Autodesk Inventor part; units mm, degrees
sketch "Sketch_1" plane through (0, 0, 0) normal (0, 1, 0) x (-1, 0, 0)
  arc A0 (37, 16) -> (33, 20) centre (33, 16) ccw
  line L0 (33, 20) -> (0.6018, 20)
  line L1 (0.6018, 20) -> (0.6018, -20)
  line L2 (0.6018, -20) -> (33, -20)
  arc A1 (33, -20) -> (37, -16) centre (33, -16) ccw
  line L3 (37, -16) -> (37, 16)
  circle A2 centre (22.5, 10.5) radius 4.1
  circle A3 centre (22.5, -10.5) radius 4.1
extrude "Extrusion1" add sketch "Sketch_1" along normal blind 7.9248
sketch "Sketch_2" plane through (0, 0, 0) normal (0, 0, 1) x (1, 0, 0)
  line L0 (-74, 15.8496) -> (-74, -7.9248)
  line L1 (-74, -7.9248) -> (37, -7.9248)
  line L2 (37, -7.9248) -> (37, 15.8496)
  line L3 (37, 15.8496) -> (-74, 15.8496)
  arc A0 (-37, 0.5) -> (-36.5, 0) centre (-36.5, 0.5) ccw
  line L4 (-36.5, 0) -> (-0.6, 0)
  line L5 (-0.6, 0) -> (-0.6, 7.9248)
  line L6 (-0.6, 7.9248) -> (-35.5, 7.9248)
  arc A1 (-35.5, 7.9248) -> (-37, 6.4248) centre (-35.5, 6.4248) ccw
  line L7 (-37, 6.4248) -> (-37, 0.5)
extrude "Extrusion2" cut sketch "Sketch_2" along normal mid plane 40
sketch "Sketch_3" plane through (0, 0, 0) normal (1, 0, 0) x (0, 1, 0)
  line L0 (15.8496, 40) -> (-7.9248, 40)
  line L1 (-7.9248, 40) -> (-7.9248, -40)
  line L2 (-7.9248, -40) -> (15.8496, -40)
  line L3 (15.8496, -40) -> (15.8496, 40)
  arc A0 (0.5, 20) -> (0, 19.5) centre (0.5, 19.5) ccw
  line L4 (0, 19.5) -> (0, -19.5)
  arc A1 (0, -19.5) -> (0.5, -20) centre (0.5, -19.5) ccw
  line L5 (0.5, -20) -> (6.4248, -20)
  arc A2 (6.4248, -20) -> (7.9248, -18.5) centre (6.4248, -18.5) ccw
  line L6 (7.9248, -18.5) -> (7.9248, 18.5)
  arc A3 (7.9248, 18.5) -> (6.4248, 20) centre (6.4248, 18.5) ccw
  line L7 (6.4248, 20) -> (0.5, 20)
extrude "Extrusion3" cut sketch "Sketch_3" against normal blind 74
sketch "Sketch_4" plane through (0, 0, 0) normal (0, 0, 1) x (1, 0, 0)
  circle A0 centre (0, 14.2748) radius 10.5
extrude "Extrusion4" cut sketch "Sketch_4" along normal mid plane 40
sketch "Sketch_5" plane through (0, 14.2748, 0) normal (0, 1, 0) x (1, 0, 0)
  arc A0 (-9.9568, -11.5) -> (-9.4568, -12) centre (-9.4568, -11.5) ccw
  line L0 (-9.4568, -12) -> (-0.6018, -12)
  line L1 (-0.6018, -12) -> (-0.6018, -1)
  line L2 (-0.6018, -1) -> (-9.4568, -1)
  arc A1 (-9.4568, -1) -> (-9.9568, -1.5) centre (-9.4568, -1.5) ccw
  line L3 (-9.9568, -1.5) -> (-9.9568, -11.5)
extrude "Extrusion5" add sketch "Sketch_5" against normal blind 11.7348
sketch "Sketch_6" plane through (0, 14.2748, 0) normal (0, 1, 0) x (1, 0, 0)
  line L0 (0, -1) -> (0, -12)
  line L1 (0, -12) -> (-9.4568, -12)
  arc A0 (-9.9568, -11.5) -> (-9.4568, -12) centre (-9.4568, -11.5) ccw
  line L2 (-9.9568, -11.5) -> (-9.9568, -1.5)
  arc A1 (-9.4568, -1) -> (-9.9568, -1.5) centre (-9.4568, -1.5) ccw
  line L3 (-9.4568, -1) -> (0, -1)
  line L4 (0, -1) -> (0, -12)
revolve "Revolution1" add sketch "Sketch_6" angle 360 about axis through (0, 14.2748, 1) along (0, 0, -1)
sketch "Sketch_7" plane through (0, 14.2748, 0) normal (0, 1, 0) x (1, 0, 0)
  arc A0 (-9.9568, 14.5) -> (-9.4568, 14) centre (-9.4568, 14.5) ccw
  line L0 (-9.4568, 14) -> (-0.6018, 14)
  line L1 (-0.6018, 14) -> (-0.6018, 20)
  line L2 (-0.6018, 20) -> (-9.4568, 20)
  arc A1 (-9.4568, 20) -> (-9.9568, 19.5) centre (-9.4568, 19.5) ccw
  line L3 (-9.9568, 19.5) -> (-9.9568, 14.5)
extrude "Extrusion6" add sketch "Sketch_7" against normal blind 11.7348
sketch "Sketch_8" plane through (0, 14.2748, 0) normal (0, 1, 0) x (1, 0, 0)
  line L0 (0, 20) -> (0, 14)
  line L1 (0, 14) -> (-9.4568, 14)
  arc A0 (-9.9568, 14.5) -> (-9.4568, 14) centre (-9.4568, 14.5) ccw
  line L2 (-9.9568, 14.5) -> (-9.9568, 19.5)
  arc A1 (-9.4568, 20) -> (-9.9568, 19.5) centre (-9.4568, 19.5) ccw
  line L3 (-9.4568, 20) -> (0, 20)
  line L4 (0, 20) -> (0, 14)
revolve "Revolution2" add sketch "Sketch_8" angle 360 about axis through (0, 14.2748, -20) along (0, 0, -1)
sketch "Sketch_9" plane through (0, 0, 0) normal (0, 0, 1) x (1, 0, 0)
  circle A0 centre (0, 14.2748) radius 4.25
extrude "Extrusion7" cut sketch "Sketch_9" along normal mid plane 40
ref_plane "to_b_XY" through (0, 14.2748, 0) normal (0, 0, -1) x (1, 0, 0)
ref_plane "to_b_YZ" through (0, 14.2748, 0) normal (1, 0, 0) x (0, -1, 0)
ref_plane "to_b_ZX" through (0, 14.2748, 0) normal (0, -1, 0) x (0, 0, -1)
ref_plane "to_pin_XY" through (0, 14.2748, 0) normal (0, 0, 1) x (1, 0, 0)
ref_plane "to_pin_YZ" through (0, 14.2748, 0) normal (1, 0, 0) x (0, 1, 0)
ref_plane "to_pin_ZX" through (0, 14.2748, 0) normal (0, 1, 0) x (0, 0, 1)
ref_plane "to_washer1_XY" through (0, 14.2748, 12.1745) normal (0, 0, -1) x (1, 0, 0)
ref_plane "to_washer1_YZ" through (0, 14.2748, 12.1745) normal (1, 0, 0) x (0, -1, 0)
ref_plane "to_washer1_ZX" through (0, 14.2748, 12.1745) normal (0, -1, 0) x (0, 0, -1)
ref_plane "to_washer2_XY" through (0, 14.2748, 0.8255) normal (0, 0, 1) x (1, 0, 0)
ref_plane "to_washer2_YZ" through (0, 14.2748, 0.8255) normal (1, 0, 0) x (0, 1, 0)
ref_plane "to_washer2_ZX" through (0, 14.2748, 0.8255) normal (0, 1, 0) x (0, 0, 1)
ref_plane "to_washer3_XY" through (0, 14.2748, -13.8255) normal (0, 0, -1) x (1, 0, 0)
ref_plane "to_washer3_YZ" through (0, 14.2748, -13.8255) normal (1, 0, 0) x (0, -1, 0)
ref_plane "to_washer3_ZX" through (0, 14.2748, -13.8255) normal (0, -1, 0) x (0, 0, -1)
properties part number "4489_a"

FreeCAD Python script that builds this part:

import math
import FreeCAD as App
import Part
import Sketcher
from FreeCAD import Vector

doc = App.newDocument("Part")
body = doc.addObject("PartDesign::Body", "Body")

sketch1 = doc.addObject("Sketcher::SketchObject", "Sketch")
body.addObject(sketch1)
sketch1.AttachmentSupport = (doc.XZ_Plane, [""])
sketch1.MapMode = "FlatFace"
sketch1.addGeometry([
    Part.LineSegment(Vector(-37, -16, 0), Vector(-37, 16, 0)),
    Part.ArcOfCircle(Part.Circle(Vector(-33, 16, 0), Vector(0, 0, 1), 4), math.radians(90), math.radians(180)),
    Part.LineSegment(Vector(-33, 20, 0), Vector(-0.6018, 20, 0)),
    Part.LineSegment(Vector(-0.6018, 20, 0), Vector(-0.6018, -20, 0)),
    Part.LineSegment(Vector(-0.6018, -20, 0), Vector(-33, -20, 0)),
    Part.ArcOfCircle(Part.Circle(Vector(-33, -16, 0), Vector(0, 0, 1), 4), math.radians(180), math.radians(270)),
    Part.Circle(Vector(-22.5, -10.5, 0), Vector(0, 0, 1), 4.1),
    Part.Circle(Vector(-22.5, 10.5, 0), Vector(0, 0, 1), 4.1),
], False)
sketch1.addConstraint([
    Sketcher.Constraint("Tangent", 0, 2, 1, 2),
    Sketcher.Constraint("Tangent", 1, 1, 2, 1),
    Sketcher.Constraint("Coincident", 2, 2, 3, 1),
    Sketcher.Constraint("Coincident", 3, 2, 4, 1),
    Sketcher.Constraint("Tangent", 4, 2, 5, 2),
    Sketcher.Constraint("Tangent", 5, 1, 0, 1),
    Sketcher.Constraint("Vertical", 0),
    Sketcher.Constraint("Horizontal", 2),
    Sketcher.Constraint("Vertical", 3),
    Sketcher.Constraint("Horizontal", 4),
    Sketcher.Constraint("Equal", 1, 5),
    Sketcher.Constraint("Equal", 6, 7),
    Sketcher.Constraint("Symmetric", 6, 3, 7, 3, -1),
    Sketcher.Constraint("Radius", 1, 4.0),
    Sketcher.Constraint("Diameter", 6, 8.2),
    Sketcher.Constraint("DistanceY", 0, 1, 0, 2, 32.0),
    Sketcher.Constraint("DistanceX", 1, 3, -1, 1, 33.0),
    Sketcher.Constraint("DistanceY", -1, 1, 1, 3, 16.0),
    Sketcher.Constraint("DistanceY", 6, 3, 7, 3, 21.0),
    Sketcher.Constraint("DistanceX", 6, 3, -1, 1, 22.5),
    Sketcher.Constraint("DistanceX", 2, 1, 2, 2, 32.3982),
])
pad1 = doc.addObject("PartDesign::Pad", "Pad")
body.addObject(pad1)
pad1.Profile = sketch1
pad1.Length = 7.9248
pad1.Reversed = True

sketch2 = doc.addObject("Sketcher::SketchObject", "Sketch001")
body.addObject(sketch2)
sketch2.AttachmentSupport = (doc.XY_Plane, [""])
sketch2.MapMode = "FlatFace"
sketch2.addGeometry([
    Part.LineSegment(Vector(37, 15.8496, 0), Vector(-74, 15.8496, 0)),
    Part.LineSegment(Vector(-74, 15.8496, 0), Vector(-74, -7.9248, 0)),
    Part.LineSegment(Vector(-74, -7.9248, 0), Vector(37, -7.9248, 0)),
    Part.LineSegment(Vector(37, -7.9248, 0), Vector(37, 15.8496, 0)),
    Part.ArcOfCircle(Part.Circle(Vector(-36.5, 0.5, 0), Vector(0, 0, 1), 0.5), math.radians(180), math.radians(270)),
    Part.LineSegment(Vector(-37, 0.5, 0), Vector(-37, 6.4248, 0)),
    Part.ArcOfCircle(Part.Circle(Vector(-35.5, 6.4248, 0), Vector(0, 0, 1), 1.5), math.radians(90), math.radians(180)),
    Part.LineSegment(Vector(-35.5, 7.9248, 0), Vector(-0.6, 7.9248, 0)),
    Part.LineSegment(Vector(-0.6, 7.9248, 0), Vector(-0.6, 0, 0)),
    Part.LineSegment(Vector(-0.6, 0, 0), Vector(-36.5, 0, 0)),
], False)
sketch2.addConstraint([
    Sketcher.Constraint("Coincident", 0, 2, 1, 1),
    Sketcher.Constraint("Coincident", 1, 2, 2, 1),
    Sketcher.Constraint("Coincident", 2, 2, 3, 1),
    Sketcher.Constraint("Coincident", 3, 2, 0, 1),
    Sketcher.Constraint("Tangent", 4, 1, 5, 1),
    Sketcher.Constraint("Tangent", 5, 2, 6, 2),
    Sketcher.Constraint("Tangent", 6, 1, 7, 1),
    Sketcher.Constraint("Coincident", 7, 2, 8, 1),
    Sketcher.Constraint("Coincident", 8, 2, 9, 1),
    Sketcher.Constraint("Tangent", 9, 2, 4, 2),
    Sketcher.Constraint("Horizontal", 0),
    Sketcher.Constraint("Vertical", 1),
    Sketcher.Constraint("Horizontal", 2),
    Sketcher.Constraint("Vertical", 3),
    Sketcher.Constraint("Vertical", 5),
    Sketcher.Constraint("Horizontal", 7),
    Sketcher.Constraint("Vertical", 8),
    Sketcher.Constraint("Horizontal", 9),
    Sketcher.Constraint("PointOnObject", 8, 2, -1),
    Sketcher.Constraint("Radius", 4, 0.5),
    Sketcher.Constraint("Radius", 6, 1.5),
    Sketcher.Constraint("DistanceX", 0, 2, 0, 1, 111.0),
    Sketcher.Constraint("DistanceX", 7, 1, 7, 2, 34.9),
    Sketcher.Constraint("DistanceX", 0, 2, -1, 1, 74.0),
    Sketcher.Constraint("DistanceX", 4, 1, -1, 1, 37.0),
    Sketcher.Constraint("DistanceY", 1, 2, 1, 1, 23.7744),
    Sketcher.Constraint("DistanceY", 5, 1, 5, 2, 5.9248),
    Sketcher.Constraint("DistanceY", -1, 1, 0, 2, 15.8496),
])
pocket1 = doc.addObject("PartDesign::Pocket", "Pocket")
body.addObject(pocket1)
pocket1.Profile = sketch2
pocket1.Length = 40
pocket1.Midplane = True

sketch3 = doc.addObject("Sketcher::SketchObject", "Sketch002")
body.addObject(sketch3)
sketch3.AttachmentSupport = (doc.YZ_Plane, [""])
sketch3.MapMode = "FlatFace"
sketch3.addGeometry([
    Part.LineSegment(Vector(15.8496, -40, 0), Vector(15.8496, 40, 0)),
    Part.LineSegment(Vector(15.8496, 40, 0), Vector(-7.9248, 40, 0)),
    Part.LineSegment(Vector(-7.9248, 40, 0), Vector(-7.9248, -40, 0)),
    Part.LineSegment(Vector(-7.9248, -40, 0), Vector(15.8496, -40, 0)),
    Part.ArcOfCircle(Part.Circle(Vector(0.5, 19.5, 0), Vector(0, 0, 1), 0.5), math.radians(90), math.radians(180)),
    Part.LineSegment(Vector(0.5, 20, 0), Vector(6.4248, 20, 0)),
    Part.ArcOfCircle(Part.Circle(Vector(6.4248, 18.5, 0), Vector(0, 0, 1), 1.5), math.radians(0), math.radians(90)),
    Part.LineSegment(Vector(7.9248, 18.5, 0), Vector(7.9248, -18.5, 0)),
    Part.ArcOfCircle(Part.Circle(Vector(6.4248, -18.5, 0), Vector(0, 0, 1), 1.5), math.radians(-90), math.radians(0)),
    Part.LineSegment(Vector(6.4248, -20, 0), Vector(0.5, -20, 0)),
    Part.ArcOfCircle(Part.Circle(Vector(0.5, -19.5, 0), Vector(0, 0, 1), 0.5), math.radians(180), math.radians(270)),
    Part.LineSegment(Vector(0, -19.5, 0), Vector(0, 19.5, 0)),
], False)
sketch3.addConstraint([
    Sketcher.Constraint("Coincident", 0, 2, 1, 1),
    Sketcher.Constraint("Coincident", 1, 2, 2, 1),
    Sketcher.Constraint("Coincident", 2, 2, 3, 1),
    Sketcher.Constraint("Coincident", 3, 2, 0, 1),
    Sketcher.Constraint("Tangent", 4, 1, 5, 1),
    Sketcher.Constraint("Tangent", 5, 2, 6, 2),
    Sketcher.Constraint("Tangent", 6, 1, 7, 1),
    Sketcher.Constraint("Tangent", 7, 2, 8, 2),
    Sketcher.Constraint("Tangent", 8, 1, 9, 1),
    Sketcher.Constraint("Tangent", 9, 2, 10, 2),
    Sketcher.Constraint("Tangent", 10, 1, 11, 1),
    Sketcher.Constraint("Tangent", 11, 2, 4, 2),
    Sketcher.Constraint("Vertical", 0),
    Sketcher.Constraint("Horizontal", 1),
    Sketcher.Constraint("Vertical", 2),
    Sketcher.Constraint("Horizontal", 3),
    Sketcher.Constraint("Horizontal", 5),
    Sketcher.Constraint("Vertical", 7),
    Sketcher.Constraint("Horizontal", 9),
    Sketcher.Constraint("Vertical", 11),
    Sketcher.Constraint("Equal", 6, 8),
    Sketcher.Constraint("Equal", 4, 10),
    Sketcher.Constraint("Symmetric", 10, 1, 11, 2, -1, 1),
    Sketcher.Constraint("Radius", 4, 0.5),
    Sketcher.Constraint("Radius", 6, 1.5),
    Sketcher.Constraint("DistanceY", 0, 1, 0, 2, 80.0),
    Sketcher.Constraint("DistanceY", 7, 2, 7, 1, 37.0),
    Sketcher.Constraint("DistanceY", -1, 1, 0, 2, 40.0),
    Sketcher.Constraint("DistanceX", 1, 2, 1, 1, 23.7744),
    Sketcher.Constraint("DistanceX", 5, 1, 5, 2, 5.9248),
    Sketcher.Constraint("DistanceX", -1, 1, 0, 2, 15.8496),
])
pocket2 = doc.addObject("PartDesign::Pocket", "Pocket001")
body.addObject(pocket2)
pocket2.Profile = sketch3
pocket2.Length = 74

sketch4 = doc.addObject("Sketcher::SketchObject", "Sketch003")
body.addObject(sketch4)
sketch4.AttachmentSupport = (doc.XY_Plane, [""])
sketch4.MapMode = "FlatFace"
sketch4.addGeometry(Part.Circle(Vector(0, 14.2748, 0), Vector(0, 0, 1), 10.5), False)
sketch4.addConstraint([
    Sketcher.Constraint("PointOnObject", 0, 3, -2),
    Sketcher.Constraint("Diameter", 0, 21.0),
    Sketcher.Constraint("DistanceY", -1, 1, 0, 3, 14.2748),
])
pocket3 = doc.addObject("PartDesign::Pocket", "Pocket002")
body.addObject(pocket3)
pocket3.Profile = sketch4
pocket3.Length = 40
pocket3.Midplane = True

sketch5 = doc.addObject("Sketcher::SketchObject", "Sketch004")
body.addObject(sketch5)
sketch5.AttachmentSupport = (doc.XZ_Plane, [""])
sketch5.MapMode = "FlatFace"
sketch5.AttachmentOffset = App.Placement(Vector(0, 0, -14.2748), App.Rotation())
sketch5.addGeometry([
    Part.LineSegment(Vector(-9.9568, 1.5, 0), Vector(-9.9568, 11.5, 0)),
    Part.ArcOfCircle(Part.Circle(Vector(-9.4568, 11.5, 0), Vector(0, 0, 1), 0.5), math.radians(90), math.radians(180)),
    Part.LineSegment(Vector(-9.4568, 12, 0), Vector(-0.6018, 12, 0)),
    Part.LineSegment(Vector(-0.6018, 12, 0), Vector(-0.6018, 1, 0)),
    Part.LineSegment(Vector(-0.6018, 1, 0), Vector(-9.4568, 1, 0)),
    Part.ArcOfCircle(Part.Circle(Vector(-9.4568, 1.5, 0), Vector(0, 0, 1), 0.5), math.radians(180), math.radians(270)),
], False)
sketch5.addConstraint([
    Sketcher.Constraint("Tangent", 0, 2, 1, 2),
    Sketcher.Constraint("Tangent", 1, 1, 2, 1),
    Sketcher.Constraint("Coincident", 2, 2, 3, 1),
    Sketcher.Constraint("Coincident", 3, 2, 4, 1),
    Sketcher.Constraint("Tangent", 4, 2, 5, 2),
    Sketcher.Constraint("Tangent", 5, 1, 0, 1),
    Sketcher.Constraint("Vertical", 0),
    Sketcher.Constraint("Horizontal", 2),
    Sketcher.Constraint("Vertical", 3),
    Sketcher.Constraint("Horizontal", 4),
    Sketcher.Constraint("Equal", 1, 5),
    Sketcher.Constraint("Radius", 1, 0.5),
    Sketcher.Constraint("DistanceY", 0, 1, 0, 2, 10.0),
    Sketcher.Constraint("DistanceY", -1, 1, 1, 1, 12.0),
    Sketcher.Constraint("DistanceX", 2, 1, 2, 2, 8.855),
    Sketcher.Constraint("DistanceX", 1, 3, -1, 1, 9.4568),
])
pad2 = doc.addObject("PartDesign::Pad", "Pad001")
body.addObject(pad2)
pad2.Profile = sketch5
pad2.Length = 11.7348

sketch6 = doc.addObject("Sketcher::SketchObject", "Sketch005")
body.addObject(sketch6)
sketch6.AttachmentSupport = (doc.XZ_Plane, [""])
sketch6.MapMode = "FlatFace"
sketch6.AttachmentOffset = App.Placement(Vector(0, 0, -14.2748), App.Rotation())
sketch6.addGeometry([
    Part.LineSegment(Vector(0, 12, 0), Vector(0, 1, 0)),
    Part.LineSegment(Vector(0, 1, 0), Vector(-9.4568, 1, 0)),
    Part.ArcOfCircle(Part.Circle(Vector(-9.4568, 1.5, 0), Vector(0, 0, 1), 0.5), math.radians(180), math.radians(270)),
    Part.LineSegment(Vector(-9.9568, 1.5, 0), Vector(-9.9568, 11.5, 0)),
    Part.ArcOfCircle(Part.Circle(Vector(-9.4568, 11.5, 0), Vector(0, 0, 1), 0.5), math.radians(90), math.radians(180)),
    Part.LineSegment(Vector(-9.4568, 12, 0), Vector(0, 12, 0)),
], False)
sketch6.addConstraint([
    Sketcher.Constraint("Coincident", 0, 2, 1, 1),
    Sketcher.Constraint("Tangent", 1, 2, 2, 2),
    Sketcher.Constraint("Tangent", 2, 1, 3, 1),
    Sketcher.Constraint("Tangent", 3, 2, 4, 2),
    Sketcher.Constraint("Tangent", 4, 1, 5, 1),
    Sketcher.Constraint("Coincident", 5, 2, 0, 1),
    Sketcher.Constraint("Vertical", 0),
    Sketcher.Constraint("Horizontal", 1),
    Sketcher.Constraint("Vertical", 3),
    Sketcher.Constraint("Horizontal", 5),
    Sketcher.Constraint("Equal", 2, 4),
    Sketcher.Constraint("PointOnObject", 0, 2, -2),
    Sketcher.Constraint("Radius", 2, 0.5),
    Sketcher.Constraint("DistanceY", 0, 2, 0, 1, 11.0),
    Sketcher.Constraint("DistanceY", -1, 1, 0, 2, 1.0),
    Sketcher.Constraint("DistanceX", 1, 2, 1, 1, 9.4568),
])
revolution = doc.addObject("PartDesign::Revolution", "Revolution")
body.addObject(revolution)
revolution.Profile = sketch6
revolution.ReferenceAxis = (sketch6, ["V_Axis"])
revolution.Angle = 360

sketch7 = doc.addObject("Sketcher::SketchObject", "Sketch006")
body.addObject(sketch7)
sketch7.AttachmentSupport = (doc.XZ_Plane, [""])
sketch7.MapMode = "FlatFace"
sketch7.AttachmentOffset = App.Placement(Vector(0, 0, -14.2748), App.Rotation())
sketch7.addGeometry([
    Part.LineSegment(Vector(-9.9568, -19.5, 0), Vector(-9.9568, -14.5, 0)),
    Part.ArcOfCircle(Part.Circle(Vector(-9.4568, -14.5, 0), Vector(0, 0, 1), 0.5), math.radians(90), math.radians(180)),
    Part.LineSegment(Vector(-9.4568, -14, 0), Vector(-0.6018, -14, 0)),
    Part.LineSegment(Vector(-0.6018, -14, 0), Vector(-0.6018, -20, 0)),
    Part.LineSegment(Vector(-0.6018, -20, 0), Vector(-9.4568, -20, 0)),
    Part.ArcOfCircle(Part.Circle(Vector(-9.4568, -19.5, 0), Vector(0, 0, 1), 0.5), math.radians(180), math.radians(270)),
], False)
sketch7.addConstraint([
    Sketcher.Constraint("Tangent", 0, 2, 1, 2),
    Sketcher.Constraint("Tangent", 1, 1, 2, 1),
    Sketcher.Constraint("Coincident", 2, 2, 3, 1),
    Sketcher.Constraint("Coincident", 3, 2, 4, 1),
    Sketcher.Constraint("Tangent", 4, 2, 5, 2),
    Sketcher.Constraint("Tangent", 5, 1, 0, 1),
    Sketcher.Constraint("Vertical", 0),
    Sketcher.Constraint("Horizontal", 2),
    Sketcher.Constraint("Vertical", 3),
    Sketcher.Constraint("Horizontal", 4),
    Sketcher.Constraint("Equal", 1, 5),
    Sketcher.Constraint("Radius", 1, 0.5),
    Sketcher.Constraint("DistanceY", 0, 1, 0, 2, 5.0),
    Sketcher.Constraint("DistanceY", 1, 1, -1, 1, 14.0),
    Sketcher.Constraint("DistanceX", 2, 1, 2, 2, 8.855),
    Sketcher.Constraint("DistanceX", 1, 3, -1, 1, 9.4568),
])
pad3 = doc.addObject("PartDesign::Pad", "Pad002")
body.addObject(pad3)
pad3.Profile = sketch7
pad3.Length = 11.7348

sketch8 = doc.addObject("Sketcher::SketchObject", "Sketch007")
body.addObject(sketch8)
sketch8.AttachmentSupport = (doc.XZ_Plane, [""])
sketch8.MapMode = "FlatFace"
sketch8.AttachmentOffset = App.Placement(Vector(0, 0, -14.2748), App.Rotation())
sketch8.addGeometry([
    Part.LineSegment(Vector(0, -14, 0), Vector(0, -20, 0)),
    Part.LineSegment(Vector(0, -20, 0), Vector(-9.4568, -20, 0)),
    Part.ArcOfCircle(Part.Circle(Vector(-9.4568, -19.5, 0), Vector(0, 0, 1), 0.5), math.radians(180), math.radians(270)),
    Part.LineSegment(Vector(-9.9568, -19.5, 0), Vector(-9.9568, -14.5, 0)),
    Part.ArcOfCircle(Part.Circle(Vector(-9.4568, -14.5, 0), Vector(0, 0, 1), 0.5), math.radians(90), math.radians(180)),
    Part.LineSegment(Vector(-9.4568, -14, 0), Vector(0, -14, 0)),
], False)
sketch8.addConstraint([
    Sketcher.Constraint("Coincident", 0, 2, 1, 1),
    Sketcher.Constraint("Tangent", 1, 2, 2, 2),
    Sketcher.Constraint("Tangent", 2, 1, 3, 1),
    Sketcher.Constraint("Tangent", 3, 2, 4, 2),
    Sketcher.Constraint("Tangent", 4, 1, 5, 1),
    Sketcher.Constraint("Coincident", 5, 2, 0, 1),
    Sketcher.Constraint("Vertical", 0),
    Sketcher.Constraint("Horizontal", 1),
    Sketcher.Constraint("Vertical", 3),
    Sketcher.Constraint("Horizontal", 5),
    Sketcher.Constraint("Equal", 2, 4),
    Sketcher.Constraint("PointOnObject", 0, 2, -2),
    Sketcher.Constraint("Radius", 2, 0.5),
    Sketcher.Constraint("DistanceY", 0, 2, 0, 1, 6.0),
    Sketcher.Constraint("DistanceY", 0, 2, -1, 1, 20.0),
    Sketcher.Constraint("DistanceX", 1, 2, 1, 1, 9.4568),
])
revolution2 = doc.addObject("PartDesign::Revolution", "Revolution001")
body.addObject(revolution2)
revolution2.Profile = sketch8
revolution2.ReferenceAxis = (sketch8, ["V_Axis"])
revolution2.Angle = 360

sketch9 = doc.addObject("Sketcher::SketchObject", "Sketch008")
body.addObject(sketch9)
sketch9.AttachmentSupport = (doc.XY_Plane, [""])
sketch9.MapMode = "FlatFace"
sketch9.addGeometry(Part.Circle(Vector(0, 14.2748, 0), Vector(0, 0, 1), 4.25), False)
sketch9.addConstraint([
    Sketcher.Constraint("PointOnObject", 0, 3, -2),
    Sketcher.Constraint("Diameter", 0, 8.5),
    Sketcher.Constraint("DistanceY", -1, 1, 0, 3, 14.2748),
])
pocket4 = doc.addObject("PartDesign::Pocket", "Pocket003")
body.addObject(pocket4)
pocket4.Profile = sketch9
pocket4.Length = 40
pocket4.Midplane = True

doc.recompute()
